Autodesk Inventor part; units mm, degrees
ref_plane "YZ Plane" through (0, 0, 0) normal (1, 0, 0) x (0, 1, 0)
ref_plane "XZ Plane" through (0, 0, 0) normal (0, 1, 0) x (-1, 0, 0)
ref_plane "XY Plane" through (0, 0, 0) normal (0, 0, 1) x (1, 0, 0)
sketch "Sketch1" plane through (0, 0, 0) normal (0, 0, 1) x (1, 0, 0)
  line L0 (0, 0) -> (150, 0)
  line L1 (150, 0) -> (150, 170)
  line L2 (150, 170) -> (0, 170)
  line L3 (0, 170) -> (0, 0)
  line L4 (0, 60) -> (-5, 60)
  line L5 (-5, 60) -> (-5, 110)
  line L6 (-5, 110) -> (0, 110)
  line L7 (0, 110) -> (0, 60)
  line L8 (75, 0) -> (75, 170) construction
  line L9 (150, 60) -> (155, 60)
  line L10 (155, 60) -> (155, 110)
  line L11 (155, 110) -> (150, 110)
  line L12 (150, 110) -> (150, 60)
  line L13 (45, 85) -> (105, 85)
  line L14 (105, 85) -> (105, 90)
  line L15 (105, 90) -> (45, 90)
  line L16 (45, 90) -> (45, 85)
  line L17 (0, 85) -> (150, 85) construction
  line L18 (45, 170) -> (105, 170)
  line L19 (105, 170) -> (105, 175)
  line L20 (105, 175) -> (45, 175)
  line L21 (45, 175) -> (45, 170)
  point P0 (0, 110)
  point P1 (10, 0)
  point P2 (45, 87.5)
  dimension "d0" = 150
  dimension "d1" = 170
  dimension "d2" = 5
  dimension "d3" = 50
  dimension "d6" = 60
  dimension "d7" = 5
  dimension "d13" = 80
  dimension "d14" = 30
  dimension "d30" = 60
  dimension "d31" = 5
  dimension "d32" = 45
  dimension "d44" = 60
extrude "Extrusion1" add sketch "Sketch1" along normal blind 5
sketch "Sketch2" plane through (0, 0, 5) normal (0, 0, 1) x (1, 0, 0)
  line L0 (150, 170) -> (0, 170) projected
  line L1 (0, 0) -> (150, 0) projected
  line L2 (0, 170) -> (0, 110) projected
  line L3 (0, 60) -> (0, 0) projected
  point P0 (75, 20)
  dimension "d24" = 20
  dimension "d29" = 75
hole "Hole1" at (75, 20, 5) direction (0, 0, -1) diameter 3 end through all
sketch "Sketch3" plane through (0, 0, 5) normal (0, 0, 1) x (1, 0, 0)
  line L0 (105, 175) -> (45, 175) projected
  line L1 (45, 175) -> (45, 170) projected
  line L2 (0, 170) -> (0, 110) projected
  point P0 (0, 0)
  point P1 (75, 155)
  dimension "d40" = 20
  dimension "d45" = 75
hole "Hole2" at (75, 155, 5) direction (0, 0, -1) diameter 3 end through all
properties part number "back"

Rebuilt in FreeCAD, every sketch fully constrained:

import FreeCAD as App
import Part
import Sketcher
from FreeCAD import Vector
Q = App.Units.Quantity


def add_polygon(sketch, points):
    """Adds a closed chain of lines whose ends are joined by coincident constraints."""
    first, n = sketch.GeometryCount, len(points)
    for a, b in zip(points, points[1:] + points[:1]):
        sketch.addGeometry(Part.LineSegment(App.Vector(*a, 0), App.Vector(*b, 0)), False)
    for i in range(n):
        sketch.addConstraint(Sketcher.Constraint("Coincident", first + i, 2, first + (i + 1) % n, 1))

doc = App.newDocument("Part")
body = doc.addObject("PartDesign::Body", "Body")

# Sketch on XY plane
sketch1 = body.newObject("Sketcher::SketchObject", "Sketch")
sketch1.AttachmentSupport = (doc.getObject("XY_Plane"), [""])
sketch1.MapMode = "FlatFace"
add_polygon(sketch1, [(0, 60), (0, 0), (150, 0), (150, 60), (155, 60), (155, 110), (150, 110), (150, 170), (105, 170), (105, 175), (45, 175), (45, 170), (0, 170), (0, 110), (-5, 110), (-5, 60)])  # lines 0-15
add_polygon(sketch1, [(105, 85), (45, 85), (45, 90), (105, 90)])  # lines 16-19
sketch1.addConstraint([
    Sketcher.Constraint("Vertical", 0),
    Sketcher.Constraint("Horizontal", 1),
    Sketcher.Constraint("Vertical", 2),
    Sketcher.Constraint("Horizontal", 3),
    Sketcher.Constraint("Vertical", 4),
    Sketcher.Constraint("Horizontal", 5),
    Sketcher.Constraint("Vertical", 6),
    Sketcher.Constraint("Horizontal", 7),
    Sketcher.Constraint("Vertical", 8),
    Sketcher.Constraint("Horizontal", 9),
    Sketcher.Constraint("Vertical", 10),
    Sketcher.Constraint("Horizontal", 11),
    Sketcher.Constraint("Vertical", 12),
    Sketcher.Constraint("Horizontal", 13),
    Sketcher.Constraint("Vertical", 14),
    Sketcher.Constraint("Horizontal", 15),
    Sketcher.Constraint("Horizontal", 16),
    Sketcher.Constraint("Vertical", 17),
    Sketcher.Constraint("Horizontal", 18),
    Sketcher.Constraint("Vertical", 19),
    Sketcher.Constraint("Coincident", 0, 2, -1, 1),
    Sketcher.Constraint("PointOnObject", 11, 2, -2),
    Sketcher.Constraint("Horizontal", 7, 2, 10, 2),
    Sketcher.Constraint("Horizontal", 5, 2, 12, 2),
    Sketcher.Constraint("Horizontal", 3, 2, 14, 2),
    Sketcher.Constraint("Vertical", 2, 2, 5, 2),
    Sketcher.Constraint("Vertical", 10, 2, 16, 2),
    Sketcher.Constraint("Vertical", 8, 2, 18, 2),
    Sketcher.Constraint("Equal", 7, 11),
    Sketcher.Constraint("Equal", 5, 13),
    Sketcher.Constraint("Equal", 18, 0),
    Sketcher.Constraint("Equal", 2, 6),
    Sketcher.Constraint("Equal", 15, 8),
    Sketcher.Constraint("Equal", 10, 17),
    Sketcher.Constraint("DistanceX", 1, 1, 1, 2, Q("150 mm")),
    Sketcher.Constraint("DistanceX", 3, 1, 3, 2, Q("5 mm")),
    Sketcher.Constraint("DistanceX", 7, 2, 7, 1, Q("45 mm")),
    Sketcher.Constraint("DistanceY", 4, 1, 4, 2, Q("50 mm")),
    Sketcher.Constraint("DistanceY", 15, 2, 17, 2, Q("30 mm")),
])
pad1 = body.newObject("PartDesign::Pad", "Pad")
pad1.Profile = sketch1
pad1.Length = 5

# Sketch on XY plane
sketch2 = body.newObject("Sketcher::SketchObject", "Sketch001")
sketch2.AttachmentSupport = (doc.getObject("XY_Plane"), [""])
sketch2.MapMode = "FlatFace"
sketch2.AttachmentOffset = App.Placement(Vector(0, 0, 5), App.Rotation())
sketch2.addGeometry(Part.Circle(Vector(75, 20, 0), Vector(0, 0, 1), 1.5), False)
sketch2.addConstraint([
    Sketcher.Constraint("Diameter", 0, Q("3 mm")),
    Sketcher.Constraint("DistanceX", -1, 1, 0, 3, Q("75 mm")),
    Sketcher.Constraint("DistanceY", -1, 1, 0, 3, Q("20 mm")),
])
doc.recompute()
hole = body.newObject("PartDesign::Hole", "Hole")
hole.Profile = sketch2
hole.ThreadType = "None"
hole.Diameter = 3
hole.DepthType = "ThroughAll"

# Sketch on XY plane
sketch3 = body.newObject("Sketcher::SketchObject", "Sketch002")
sketch3.AttachmentSupport = (doc.getObject("XY_Plane"), [""])
sketch3.MapMode = "FlatFace"
sketch3.AttachmentOffset = App.Placement(Vector(0, 0, 5), App.Rotation())
sketch3.addGeometry(Part.Circle(Vector(75, 155, 0), Vector(0, 0, 1), 1.5), False)
sketch3.addConstraint([
    Sketcher.Constraint("Diameter", 0, Q("3 mm")),
    Sketcher.Constraint("DistanceX", -1, 1, 0, 3, Q("75 mm")),
    Sketcher.Constraint("DistanceY", -1, 1, 0, 3, Q("155 mm")),
])
doc.recompute()
hole2 = body.newObject("PartDesign::Hole", "Hole001")
hole2.Profile = sketch3
hole2.ThreadType = "None"
hole2.Diameter = 3
hole2.DepthType = "ThroughAll"

doc.recompute()
